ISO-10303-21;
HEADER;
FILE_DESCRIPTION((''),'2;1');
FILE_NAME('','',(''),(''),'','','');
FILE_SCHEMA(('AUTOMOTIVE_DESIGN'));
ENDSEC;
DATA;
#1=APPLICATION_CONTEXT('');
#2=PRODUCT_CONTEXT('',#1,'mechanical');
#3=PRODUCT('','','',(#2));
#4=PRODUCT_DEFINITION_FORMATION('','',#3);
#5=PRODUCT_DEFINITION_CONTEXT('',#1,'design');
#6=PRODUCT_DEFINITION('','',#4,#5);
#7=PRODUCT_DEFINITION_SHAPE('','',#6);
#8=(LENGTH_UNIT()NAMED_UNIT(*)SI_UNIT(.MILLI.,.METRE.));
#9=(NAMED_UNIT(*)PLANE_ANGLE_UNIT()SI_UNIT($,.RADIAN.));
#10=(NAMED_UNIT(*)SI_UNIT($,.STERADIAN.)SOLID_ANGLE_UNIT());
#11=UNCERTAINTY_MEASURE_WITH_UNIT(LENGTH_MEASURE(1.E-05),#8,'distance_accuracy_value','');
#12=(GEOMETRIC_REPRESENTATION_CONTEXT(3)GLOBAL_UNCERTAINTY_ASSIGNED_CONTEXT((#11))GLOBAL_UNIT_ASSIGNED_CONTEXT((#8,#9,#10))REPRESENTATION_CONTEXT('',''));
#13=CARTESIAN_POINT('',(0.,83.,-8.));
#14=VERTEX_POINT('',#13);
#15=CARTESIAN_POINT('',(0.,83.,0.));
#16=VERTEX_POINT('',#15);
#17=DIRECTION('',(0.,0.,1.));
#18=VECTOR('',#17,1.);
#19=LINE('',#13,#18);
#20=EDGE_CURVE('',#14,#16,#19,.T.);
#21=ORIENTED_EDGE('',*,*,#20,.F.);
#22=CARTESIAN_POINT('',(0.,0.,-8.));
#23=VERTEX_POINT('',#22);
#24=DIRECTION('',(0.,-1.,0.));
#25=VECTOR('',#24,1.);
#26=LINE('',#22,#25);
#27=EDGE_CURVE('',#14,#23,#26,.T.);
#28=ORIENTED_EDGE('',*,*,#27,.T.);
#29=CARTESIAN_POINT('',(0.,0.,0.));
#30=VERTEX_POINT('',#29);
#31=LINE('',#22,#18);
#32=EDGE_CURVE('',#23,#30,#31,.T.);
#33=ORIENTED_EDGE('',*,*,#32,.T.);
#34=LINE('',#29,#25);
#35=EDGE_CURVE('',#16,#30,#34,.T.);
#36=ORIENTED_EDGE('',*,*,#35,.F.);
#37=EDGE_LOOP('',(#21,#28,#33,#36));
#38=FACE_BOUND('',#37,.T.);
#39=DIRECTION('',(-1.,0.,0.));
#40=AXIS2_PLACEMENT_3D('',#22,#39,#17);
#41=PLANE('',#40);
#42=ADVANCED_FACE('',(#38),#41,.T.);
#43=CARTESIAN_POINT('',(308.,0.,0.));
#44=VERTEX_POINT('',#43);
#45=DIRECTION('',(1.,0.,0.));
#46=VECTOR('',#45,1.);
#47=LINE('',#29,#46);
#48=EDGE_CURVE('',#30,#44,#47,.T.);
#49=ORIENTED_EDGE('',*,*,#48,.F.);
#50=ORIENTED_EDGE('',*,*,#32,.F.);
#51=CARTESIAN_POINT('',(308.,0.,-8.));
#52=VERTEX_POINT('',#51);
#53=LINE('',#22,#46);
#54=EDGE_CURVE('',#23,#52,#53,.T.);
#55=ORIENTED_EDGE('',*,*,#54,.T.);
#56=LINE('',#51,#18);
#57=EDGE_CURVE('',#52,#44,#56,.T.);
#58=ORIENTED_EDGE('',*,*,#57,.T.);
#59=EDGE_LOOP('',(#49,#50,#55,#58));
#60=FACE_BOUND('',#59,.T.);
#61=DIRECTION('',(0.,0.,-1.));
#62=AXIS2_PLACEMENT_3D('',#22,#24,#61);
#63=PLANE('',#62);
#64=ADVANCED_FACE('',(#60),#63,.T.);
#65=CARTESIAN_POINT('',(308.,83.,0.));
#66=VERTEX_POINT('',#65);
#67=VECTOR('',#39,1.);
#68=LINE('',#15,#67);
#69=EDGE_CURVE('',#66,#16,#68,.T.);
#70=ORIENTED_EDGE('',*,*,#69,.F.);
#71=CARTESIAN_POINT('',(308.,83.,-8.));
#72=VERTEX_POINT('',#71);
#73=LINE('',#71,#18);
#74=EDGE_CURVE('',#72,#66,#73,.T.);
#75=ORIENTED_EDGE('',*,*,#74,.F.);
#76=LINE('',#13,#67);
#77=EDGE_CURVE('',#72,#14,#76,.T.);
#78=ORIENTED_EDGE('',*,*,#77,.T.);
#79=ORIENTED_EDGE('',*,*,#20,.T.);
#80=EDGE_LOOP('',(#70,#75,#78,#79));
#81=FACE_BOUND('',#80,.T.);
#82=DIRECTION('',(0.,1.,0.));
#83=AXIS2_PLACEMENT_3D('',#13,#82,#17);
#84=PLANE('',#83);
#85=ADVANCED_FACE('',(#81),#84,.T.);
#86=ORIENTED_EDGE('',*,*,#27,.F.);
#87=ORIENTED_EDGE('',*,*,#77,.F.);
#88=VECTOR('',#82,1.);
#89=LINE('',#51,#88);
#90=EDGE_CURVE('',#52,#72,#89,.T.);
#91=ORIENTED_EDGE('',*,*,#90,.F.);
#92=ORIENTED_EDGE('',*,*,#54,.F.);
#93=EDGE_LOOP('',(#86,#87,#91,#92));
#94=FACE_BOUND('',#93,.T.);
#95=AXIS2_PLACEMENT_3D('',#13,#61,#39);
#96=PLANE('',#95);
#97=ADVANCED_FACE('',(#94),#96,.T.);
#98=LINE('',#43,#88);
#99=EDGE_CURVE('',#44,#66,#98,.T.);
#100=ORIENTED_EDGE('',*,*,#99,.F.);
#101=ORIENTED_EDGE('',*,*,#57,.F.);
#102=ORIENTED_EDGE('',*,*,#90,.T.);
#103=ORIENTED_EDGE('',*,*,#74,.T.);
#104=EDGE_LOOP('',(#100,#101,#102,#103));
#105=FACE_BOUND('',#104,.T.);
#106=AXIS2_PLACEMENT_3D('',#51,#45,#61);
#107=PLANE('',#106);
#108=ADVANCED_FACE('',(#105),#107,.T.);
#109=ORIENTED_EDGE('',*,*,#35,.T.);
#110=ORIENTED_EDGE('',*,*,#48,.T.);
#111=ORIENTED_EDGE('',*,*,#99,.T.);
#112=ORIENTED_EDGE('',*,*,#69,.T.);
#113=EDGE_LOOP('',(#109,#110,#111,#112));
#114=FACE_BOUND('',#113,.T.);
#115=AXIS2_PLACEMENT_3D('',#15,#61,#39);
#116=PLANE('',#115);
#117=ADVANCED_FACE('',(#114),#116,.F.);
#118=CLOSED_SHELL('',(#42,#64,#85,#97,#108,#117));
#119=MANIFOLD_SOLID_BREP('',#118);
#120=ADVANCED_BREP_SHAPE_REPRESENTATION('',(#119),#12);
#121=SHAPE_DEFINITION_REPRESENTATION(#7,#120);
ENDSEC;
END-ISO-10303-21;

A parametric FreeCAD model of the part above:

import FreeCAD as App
import Part
import Sketcher
from FreeCAD import Vector
Q = App.Units.Quantity

doc = App.newDocument("Part")
params = doc.addObject("Spreadsheet::Sheet", "Params")
for row, (alias, value) in enumerate([
    ("sketch1_width", "308 mm"),
    ("sketch1_height", "83 mm"),
    ("pad1_length", "8 mm"),
], start=1):
    params.set(f"A{row}", alias)
    params.set(f"B{row}", "=" + value)
    params.setAlias(f"B{row}", alias)

body = doc.addObject("PartDesign::Body", "Body")

# Sketch on XY plane
sketch1 = doc.addObject("Sketcher::SketchObject", "Sketch")
body.addObject(sketch1)
sketch1.AttachmentSupport = (doc.XY_Plane, [""])
sketch1.MapMode = "FlatFace"
sketch1.addGeometry(Part.LineSegment(Vector(0, 83, 0), Vector(0, 0, 0)), False)
sketch1.addGeometry(Part.LineSegment(Vector(0, 0, 0), Vector(308, 0, 0)), False)
sketch1.addGeometry(Part.LineSegment(Vector(308, 0, 0), Vector(308, 83, 0)), False)
sketch1.addGeometry(Part.LineSegment(Vector(308, 83, 0), Vector(0, 83, 0)), False)
sketch1.addConstraint(Sketcher.Constraint("Coincident", 0, 2, 1, 1))
sketch1.addConstraint(Sketcher.Constraint("Coincident", 1, 2, 2, 1))
sketch1.addConstraint(Sketcher.Constraint("Coincident", 2, 2, 3, 1))
sketch1.addConstraint(Sketcher.Constraint("Coincident", 3, 2, 0, 1))
sketch1.addConstraint(Sketcher.Constraint("Vertical", 0))
sketch1.addConstraint(Sketcher.Constraint("Horizontal", 1))
sketch1.addConstraint(Sketcher.Constraint("Vertical", 2))
sketch1.addConstraint(Sketcher.Constraint("Horizontal", 3))
sketch1.addConstraint(Sketcher.Constraint("Coincident", 0, 2, -1, 1))
sketch1.addConstraint(Sketcher.Constraint("DistanceX", 1, 1, 1, 2, Q("308 mm")))
sketch1.addConstraint(Sketcher.Constraint("DistanceY", 0, 2, 0, 1, Q("83 mm")))
sketch1.setExpression("Constraints[9]", "Params.sketch1_width")
sketch1.setExpression("Constraints[10]", "Params.sketch1_height")
pad1 = doc.addObject("PartDesign::Pad", "Pad")
body.addObject(pad1)
pad1.Profile = sketch1
pad1.setExpression("Length", "Params.pad1_length")
pad1.Reversed = True

doc.recompute()
